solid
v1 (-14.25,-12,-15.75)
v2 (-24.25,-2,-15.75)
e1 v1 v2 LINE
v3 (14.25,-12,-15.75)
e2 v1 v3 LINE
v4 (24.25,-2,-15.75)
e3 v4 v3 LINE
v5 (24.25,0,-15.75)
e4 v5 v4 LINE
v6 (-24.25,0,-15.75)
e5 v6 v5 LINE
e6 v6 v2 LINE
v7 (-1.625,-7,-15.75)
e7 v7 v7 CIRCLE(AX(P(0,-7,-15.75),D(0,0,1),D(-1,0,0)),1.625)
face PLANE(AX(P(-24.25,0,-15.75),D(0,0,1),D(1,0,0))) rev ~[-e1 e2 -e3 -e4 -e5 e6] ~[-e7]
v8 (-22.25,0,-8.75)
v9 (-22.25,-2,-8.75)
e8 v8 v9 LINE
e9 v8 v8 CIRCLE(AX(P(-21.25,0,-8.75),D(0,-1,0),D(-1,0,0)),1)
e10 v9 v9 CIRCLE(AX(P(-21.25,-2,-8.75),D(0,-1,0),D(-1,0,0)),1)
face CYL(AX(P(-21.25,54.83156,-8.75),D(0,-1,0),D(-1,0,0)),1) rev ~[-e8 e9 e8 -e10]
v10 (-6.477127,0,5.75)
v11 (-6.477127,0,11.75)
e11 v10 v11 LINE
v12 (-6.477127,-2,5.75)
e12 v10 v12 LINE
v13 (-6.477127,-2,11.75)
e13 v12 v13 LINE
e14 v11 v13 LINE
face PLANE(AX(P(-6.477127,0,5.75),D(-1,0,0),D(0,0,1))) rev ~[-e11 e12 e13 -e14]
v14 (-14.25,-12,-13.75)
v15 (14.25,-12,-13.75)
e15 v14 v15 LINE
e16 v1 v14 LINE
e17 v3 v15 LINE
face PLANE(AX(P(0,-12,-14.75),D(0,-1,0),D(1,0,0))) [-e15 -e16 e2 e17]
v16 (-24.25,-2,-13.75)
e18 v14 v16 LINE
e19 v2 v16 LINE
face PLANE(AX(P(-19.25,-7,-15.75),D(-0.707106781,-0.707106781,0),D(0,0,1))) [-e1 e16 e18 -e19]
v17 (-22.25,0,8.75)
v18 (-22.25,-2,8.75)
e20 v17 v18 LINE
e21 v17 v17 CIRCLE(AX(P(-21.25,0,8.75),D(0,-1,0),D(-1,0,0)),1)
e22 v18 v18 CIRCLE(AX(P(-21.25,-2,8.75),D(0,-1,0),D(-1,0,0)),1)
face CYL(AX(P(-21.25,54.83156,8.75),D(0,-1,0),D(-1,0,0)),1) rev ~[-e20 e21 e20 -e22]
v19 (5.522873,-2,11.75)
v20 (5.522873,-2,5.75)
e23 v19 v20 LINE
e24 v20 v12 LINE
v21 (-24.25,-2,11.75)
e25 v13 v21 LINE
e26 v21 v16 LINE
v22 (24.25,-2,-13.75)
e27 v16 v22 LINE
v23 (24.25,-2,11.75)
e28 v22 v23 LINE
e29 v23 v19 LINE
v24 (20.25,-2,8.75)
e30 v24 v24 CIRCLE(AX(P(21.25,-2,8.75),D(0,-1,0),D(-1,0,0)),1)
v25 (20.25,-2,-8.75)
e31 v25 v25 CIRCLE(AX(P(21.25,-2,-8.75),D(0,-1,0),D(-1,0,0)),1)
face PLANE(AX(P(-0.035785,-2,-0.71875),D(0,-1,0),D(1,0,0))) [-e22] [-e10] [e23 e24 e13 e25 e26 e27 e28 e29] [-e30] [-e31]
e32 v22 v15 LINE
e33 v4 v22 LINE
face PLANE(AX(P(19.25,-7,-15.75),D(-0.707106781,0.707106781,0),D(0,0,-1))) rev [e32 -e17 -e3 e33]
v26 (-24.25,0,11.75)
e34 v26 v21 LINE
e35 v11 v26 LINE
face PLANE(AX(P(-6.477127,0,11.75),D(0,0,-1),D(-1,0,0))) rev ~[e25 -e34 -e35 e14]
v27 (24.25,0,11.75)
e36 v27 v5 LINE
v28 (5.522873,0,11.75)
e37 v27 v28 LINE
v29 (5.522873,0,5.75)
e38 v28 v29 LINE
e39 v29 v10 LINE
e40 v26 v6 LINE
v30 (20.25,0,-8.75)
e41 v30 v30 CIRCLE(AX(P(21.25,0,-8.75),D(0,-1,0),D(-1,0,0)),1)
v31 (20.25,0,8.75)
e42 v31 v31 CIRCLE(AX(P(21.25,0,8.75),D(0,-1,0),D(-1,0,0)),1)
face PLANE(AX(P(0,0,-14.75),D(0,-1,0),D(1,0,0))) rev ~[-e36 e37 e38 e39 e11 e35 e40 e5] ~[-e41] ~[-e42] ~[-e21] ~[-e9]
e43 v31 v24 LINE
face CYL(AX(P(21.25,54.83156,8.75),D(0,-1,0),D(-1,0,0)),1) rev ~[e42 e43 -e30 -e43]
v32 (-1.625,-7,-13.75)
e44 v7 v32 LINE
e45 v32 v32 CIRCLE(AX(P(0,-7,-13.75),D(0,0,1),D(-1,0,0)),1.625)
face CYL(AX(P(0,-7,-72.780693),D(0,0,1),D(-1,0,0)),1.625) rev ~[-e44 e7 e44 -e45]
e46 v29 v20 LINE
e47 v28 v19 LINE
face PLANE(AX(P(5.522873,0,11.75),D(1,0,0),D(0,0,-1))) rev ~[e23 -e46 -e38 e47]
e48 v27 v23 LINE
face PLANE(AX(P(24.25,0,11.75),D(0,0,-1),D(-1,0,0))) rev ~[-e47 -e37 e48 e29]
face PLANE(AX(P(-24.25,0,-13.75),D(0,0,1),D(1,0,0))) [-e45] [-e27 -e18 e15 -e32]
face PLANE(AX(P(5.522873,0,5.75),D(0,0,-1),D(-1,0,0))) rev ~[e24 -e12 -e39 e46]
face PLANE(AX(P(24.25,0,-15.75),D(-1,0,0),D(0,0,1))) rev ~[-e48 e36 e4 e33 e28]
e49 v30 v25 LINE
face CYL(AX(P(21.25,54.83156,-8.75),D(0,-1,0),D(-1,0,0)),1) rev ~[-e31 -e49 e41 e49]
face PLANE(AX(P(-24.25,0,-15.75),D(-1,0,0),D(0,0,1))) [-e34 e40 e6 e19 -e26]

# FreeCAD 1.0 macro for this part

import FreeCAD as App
import Part
import Sketcher
Q = App.Units.Quantity


def edges_at(feature, points):
    """Names of the edges that pass closest to the given points."""
    edges = feature.Shape.Edges
    near = lambda p: min(range(len(edges)), key=lambda i: edges[i].distToShape(Part.Vertex(*p))[0])
    return sorted({f"Edge{near(p) + 1}" for p in points})


def add_polygon(sketch, points):
    """Adds a closed chain of lines whose ends are joined by coincident constraints."""
    first, n = sketch.GeometryCount, len(points)
    for a, b in zip(points, points[1:] + points[:1]):
        sketch.addGeometry(Part.LineSegment(App.Vector(*a, 0), App.Vector(*b, 0)), False)
    for i in range(n):
        sketch.addConstraint(Sketcher.Constraint("Coincident", first + i, 2, first + (i + 1) % n, 1))

doc = App.newDocument("Part")
body = doc.addObject("PartDesign::Body", "Body")

# Sketch on XZ plane
sketch1 = body.newObject("Sketcher::SketchObject", "Sketch")
sketch1.AttachmentSupport = (doc.getObject("XZ_Plane"), [""])
sketch1.MapMode = "FlatFace"
add_polygon(sketch1, [(-24.25, 11.75), (-24.25, -13.75), (24.25, -13.75), (24.25, 11.75), (5.522873, 11.75), (5.522873, 5.75), (-6.477127, 5.75), (-6.477127, 11.75)])  # lines 0-7
sketch1.addConstraint([
    Sketcher.Constraint("Vertical", 0),
    Sketcher.Constraint("Horizontal", 1),
    Sketcher.Constraint("Vertical", 2),
    Sketcher.Constraint("Horizontal", 3),
    Sketcher.Constraint("Vertical", 4),
    Sketcher.Constraint("Horizontal", 5),
    Sketcher.Constraint("Vertical", 6),
    Sketcher.Constraint("Horizontal", 7),
    Sketcher.Constraint("Symmetric", 2, 2, 7, 2, -2),
    Sketcher.Constraint("DistanceX", 5, 2, 5, 1, Q("12 mm")),
    Sketcher.Constraint("DistanceY", 4, 2, 4, 1, Q("6 mm")),
    Sketcher.Constraint("DistanceX", 1, 1, 1, 2, Q("48.5 mm")),
    Sketcher.Constraint("DistanceY", 0, 2, 0, 1, Q("25.5 mm")),
    Sketcher.Constraint("DistanceY", 0, 2, -1, 1, Q("13.75 mm")),
    Sketcher.Constraint("DistanceX", 3, 2, 3, 1, Q("18.727127 mm")),
])
pad1 = body.newObject("PartDesign::Pad", "Pad")
pad1.Profile = sketch1
pad1.Length = 2

# Sketch on XZ plane
sketch2 = body.newObject("Sketcher::SketchObject", "Sketch001")
sketch2.AttachmentSupport = (doc.getObject("XZ_Plane"), [""])
sketch2.MapMode = "FlatFace"
sketch2.addGeometry(Part.Circle(App.Vector(-21.25, 8.75, 0), App.Vector(0, 0, 1), 1), False)
sketch2.addConstraint([
    Sketcher.Constraint("Diameter", 0, Q("2 mm")),
    Sketcher.Constraint("DistanceX", 0, 3, -1, 1, Q("21.25 mm")),
    Sketcher.Constraint("DistanceY", -1, 1, 0, 3, Q("8.75 mm")),
])
doc.recompute()
hole = body.newObject("PartDesign::Hole", "Hole")
hole.Profile = sketch2
hole.ThreadType = "None"
hole.Diameter = 2
hole.DepthType = "ThroughAll"
hole.Reversed = True

# Sketch on XZ plane
sketch3 = body.newObject("Sketcher::SketchObject", "Sketch002")
sketch3.AttachmentSupport = (doc.getObject("XZ_Plane"), [""])
sketch3.MapMode = "FlatFace"
sketch3.addGeometry(Part.Circle(App.Vector(-21.25, -8.75, 0), App.Vector(0, 0, 1), 1), False)
sketch3.addConstraint([
    Sketcher.Constraint("Diameter", 0, Q("2 mm")),
    Sketcher.Constraint("DistanceX", 0, 3, -1, 1, Q("21.25 mm")),
    Sketcher.Constraint("DistanceY", 0, 3, -1, 1, Q("8.75 mm")),
])
doc.recompute()
hole2 = body.newObject("PartDesign::Hole", "Hole001")
hole2.Profile = sketch3
hole2.ThreadType = "None"
hole2.Diameter = 2
hole2.DepthType = "ThroughAll"
hole2.Reversed = True

# Sketch on XZ plane
sketch4 = body.newObject("Sketcher::SketchObject", "Sketch003")
sketch4.AttachmentSupport = (doc.getObject("XZ_Plane"), [""])
sketch4.MapMode = "FlatFace"
sketch4.addGeometry(Part.Circle(App.Vector(21.25, 8.75, 0), App.Vector(0, 0, 1), 1), False)
sketch4.addConstraint([
    Sketcher.Constraint("Diameter", 0, Q("2 mm")),
    Sketcher.Constraint("DistanceX", -1, 1, 0, 3, Q("21.25 mm")),
    Sketcher.Constraint("DistanceY", -1, 1, 0, 3, Q("8.75 mm")),
])
doc.recompute()
hole3 = body.newObject("PartDesign::Hole", "Hole002")
hole3.Profile = sketch4
hole3.ThreadType = "None"
hole3.Diameter = 2
hole3.DepthType = "ThroughAll"
hole3.Reversed = True

# Sketch on XZ plane
sketch5 = body.newObject("Sketcher::SketchObject", "Sketch004")
sketch5.AttachmentSupport = (doc.getObject("XZ_Plane"), [""])
sketch5.MapMode = "FlatFace"
sketch5.addGeometry(Part.Circle(App.Vector(21.25, -8.75, 0), App.Vector(0, 0, 1), 1), False)
sketch5.addConstraint([
    Sketcher.Constraint("Diameter", 0, Q("2 mm")),
    Sketcher.Constraint("DistanceX", -1, 1, 0, 3, Q("21.25 mm")),
    Sketcher.Constraint("DistanceY", 0, 3, -1, 1, Q("8.75 mm")),
])
doc.recompute()
hole4 = body.newObject("PartDesign::Hole", "Hole003")
hole4.Profile = sketch5
hole4.ThreadType = "None"
hole4.Diameter = 2
hole4.DepthType = "ThroughAll"
hole4.Reversed = True

# Sketch on XZ plane
sketch6 = body.newObject("Sketcher::SketchObject", "Sketch005")
sketch6.AttachmentSupport = (doc.getObject("XZ_Plane"), [""])
sketch6.MapMode = "FlatFace"
add_polygon(sketch6, [(-24.25, -13.75), (-24.25, -15.75), (24.25, -15.75), (24.25, -13.75)])  # lines 0-3
sketch6.addConstraint([
    Sketcher.Constraint("Vertical", 0),
    Sketcher.Constraint("Horizontal", 1),
    Sketcher.Constraint("Vertical", 2),
    Sketcher.Constraint("Horizontal", 3),
    Sketcher.Constraint("DistanceY", 0, 2, 0, 1, Q("2 mm")),
    Sketcher.Constraint("DistanceX", 1, 1, 1, 2, Q("48.5 mm")),
    Sketcher.Constraint("DistanceX", 0, 2, -1, 1, Q("24.25 mm")),
    Sketcher.Constraint("DistanceY", 0, 2, -1, 1, Q("15.75 mm")),
])
pad2 = body.newObject("PartDesign::Pad", "Pad001")
pad2.Profile = sketch6
pad2.Length = 12
doc.recompute()

chamfer = body.newObject("PartDesign::Chamfer", "Chamfer")
chamfer.Base = (pad2, edges_at(pad2, [(24.25, -12, -14.75)]))
chamfer.Size = 10
doc.recompute()

chamfer2 = body.newObject("PartDesign::Chamfer", "Chamfer001")
chamfer2.Base = (chamfer, edges_at(chamfer, [(-24.25, -12, -14.75)]))
chamfer2.Size = 10

# Sketch on XY plane
sketch7 = body.newObject("Sketcher::SketchObject", "Sketch006")
sketch7.AttachmentSupport = (doc.getObject("XY_Plane"), [""])
sketch7.MapMode = "FlatFace"
sketch7.AttachmentOffset = App.Placement(App.Vector(0, 0, -15.75), App.Rotation())
sketch7.addGeometry(Part.Circle(App.Vector(0, -7, 0), App.Vector(0, 0, 1), 1.625), False)
sketch7.addConstraint([
    Sketcher.Constraint("PointOnObject", 0, 3, -2),
    Sketcher.Constraint("Diameter", 0, Q("3.25 mm")),
    Sketcher.Constraint("DistanceY", 0, 3, -1, 1, Q("7 mm")),
])
doc.recompute()
hole5 = body.newObject("PartDesign::Hole", "Hole004")
hole5.Profile = sketch7
hole5.ThreadType = "None"
hole5.Diameter = 3.25
hole5.DepthType = "ThroughAll"
hole5.Reversed = True

doc.recompute()
